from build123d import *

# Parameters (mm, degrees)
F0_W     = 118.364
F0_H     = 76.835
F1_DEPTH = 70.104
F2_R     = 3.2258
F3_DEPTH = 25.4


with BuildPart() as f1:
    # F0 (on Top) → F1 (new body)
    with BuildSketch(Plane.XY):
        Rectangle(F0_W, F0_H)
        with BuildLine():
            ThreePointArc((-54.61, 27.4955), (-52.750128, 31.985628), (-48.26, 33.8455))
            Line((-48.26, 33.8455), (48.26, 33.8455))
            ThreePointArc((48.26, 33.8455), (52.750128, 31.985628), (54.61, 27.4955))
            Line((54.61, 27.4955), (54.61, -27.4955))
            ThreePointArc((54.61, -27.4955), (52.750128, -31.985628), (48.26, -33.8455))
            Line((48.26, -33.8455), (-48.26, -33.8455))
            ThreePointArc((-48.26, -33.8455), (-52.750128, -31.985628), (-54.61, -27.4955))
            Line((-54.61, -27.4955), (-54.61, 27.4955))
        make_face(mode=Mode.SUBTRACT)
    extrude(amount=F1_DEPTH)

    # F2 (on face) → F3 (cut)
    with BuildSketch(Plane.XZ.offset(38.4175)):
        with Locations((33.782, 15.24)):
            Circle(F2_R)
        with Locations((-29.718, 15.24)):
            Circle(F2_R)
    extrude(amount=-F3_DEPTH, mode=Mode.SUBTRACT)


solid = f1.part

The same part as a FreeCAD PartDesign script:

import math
import FreeCAD as App
import Part
import Sketcher

V = App.Vector
Q = App.Units.Quantity

doc = App.newDocument("Part")
body = doc.addObject("PartDesign::Body", "Body")

# Sketch on XY plane
sketch1 = body.newObject("Sketcher::SketchObject", "Sketch")
sketch1.AttachmentSupport = (doc.getObject("XY_Plane"), [""])
sketch1.MapMode = "FlatFace"
sketch1.addGeometry(Part.LineSegment(V(-59.182, 38.4175, 0), V(-59.182, -38.4175, 0)), False)
sketch1.addGeometry(Part.LineSegment(V(-59.182, -38.4175, 0), V(59.182, -38.4175, 0)), False)
sketch1.addGeometry(Part.LineSegment(V(59.182, -38.4175, 0), V(59.182, 38.4175, 0)), False)
sketch1.addGeometry(Part.LineSegment(V(59.182, 38.4175, 0), V(-59.182, 38.4175, 0)), False)
sketch1.addGeometry(Part.LineSegment(V(-54.61, -27.4955, 0), V(-54.61, 27.4955, 0)), False)
sketch1.addGeometry(Part.ArcOfCircle(Part.Circle(V(-48.26, 27.4955, 0), V(0, 0, 1), 6.35), math.radians(90.000002), math.radians(179.999998)), False)
sketch1.addGeometry(Part.LineSegment(V(-48.26, 33.8455, 0), V(48.26, 33.8455, 0)), False)
sketch1.addGeometry(Part.ArcOfCircle(Part.Circle(V(48.26, 27.4955, 0), V(0, 0, 1), 6.35), math.radians(0.000002), math.radians(89.999998)), False)
sketch1.addGeometry(Part.LineSegment(V(54.61, 27.4955, 0), V(54.61, -27.4955, 0)), False)
sketch1.addGeometry(Part.ArcOfCircle(Part.Circle(V(48.26, -27.4955, 0), V(0, 0, 1), 6.35), math.radians(-89.999998), math.radians(-0.000002)), False)
sketch1.addGeometry(Part.LineSegment(V(48.26, -33.8455, 0), V(-48.26, -33.8455, 0)), False)
sketch1.addGeometry(Part.ArcOfCircle(Part.Circle(V(-48.26, -27.4955, 0), V(0, 0, 1), 6.35), math.radians(-179.999998), math.radians(-90.000002)), False)
sketch1.addConstraint(Sketcher.Constraint("Coincident", 0, 2, 1, 1))
sketch1.addConstraint(Sketcher.Constraint("Coincident", 1, 2, 2, 1))
sketch1.addConstraint(Sketcher.Constraint("Coincident", 2, 2, 3, 1))
sketch1.addConstraint(Sketcher.Constraint("Coincident", 3, 2, 0, 1))
sketch1.addConstraint(Sketcher.Constraint("Tangent", 4, 2, 5, 2))
sketch1.addConstraint(Sketcher.Constraint("Tangent", 5, 1, 6, 1))
sketch1.addConstraint(Sketcher.Constraint("Tangent", 6, 2, 7, 2))
sketch1.addConstraint(Sketcher.Constraint("Tangent", 7, 1, 8, 1))
sketch1.addConstraint(Sketcher.Constraint("Tangent", 8, 2, 9, 2))
sketch1.addConstraint(Sketcher.Constraint("Tangent", 9, 1, 10, 1))
sketch1.addConstraint(Sketcher.Constraint("Tangent", 10, 2, 11, 2))
sketch1.addConstraint(Sketcher.Constraint("Tangent", 11, 1, 4, 1))
sketch1.addConstraint(Sketcher.Constraint("Vertical", 0))
sketch1.addConstraint(Sketcher.Constraint("Horizontal", 1))
sketch1.addConstraint(Sketcher.Constraint("Vertical", 2))
sketch1.addConstraint(Sketcher.Constraint("Horizontal", 3))
sketch1.addConstraint(Sketcher.Constraint("Vertical", 4))
sketch1.addConstraint(Sketcher.Constraint("Horizontal", 6))
sketch1.addConstraint(Sketcher.Constraint("Vertical", 8))
sketch1.addConstraint(Sketcher.Constraint("Horizontal", 10))
sketch1.addConstraint(Sketcher.Constraint("Equal", 5, 7))
sketch1.addConstraint(Sketcher.Constraint("Equal", 7, 9))
sketch1.addConstraint(Sketcher.Constraint("Equal", 9, 11))
sketch1.addConstraint(Sketcher.Constraint("Symmetric", 5, 3, 9, 3, -1, 1))
sketch1.addConstraint(Sketcher.Constraint("Symmetric", 0, 2, 2, 2, -1, 1))
sketch1.addConstraint(Sketcher.Constraint("Radius", 5, Q("0.25 in")))
sketch1.addConstraint(Sketcher.Constraint("DistanceX", 6, 1, 6, 2, Q("3.8 in")))
sketch1.addConstraint(Sketcher.Constraint("DistanceX", 1, 1, 1, 2, Q("4.66 in")))
sketch1.addConstraint(Sketcher.Constraint("DistanceY", 0, 2, 0, 1, Q("3.025 in")))
sketch1.addConstraint(Sketcher.Constraint("DistanceY", 4, 1, 4, 2, Q("2.165 in")))
pad1 = body.newObject("PartDesign::Pad", "Pad")
pad1.Profile = sketch1
pad1.Length = Q("2.76 in")

# Sketch on XZ plane
sketch2 = body.newObject("Sketcher::SketchObject", "Sketch001")
sketch2.AttachmentSupport = (doc.getObject("XZ_Plane"), [""])
sketch2.MapMode = "FlatFace"
sketch2.AttachmentOffset = App.Placement(V(0, 0, 1.5125 * 25.4), App.Rotation())
sketch2.addGeometry(Part.Circle(V(33.782, 15.24, 0), V(0, 0, 1), 3.2258), False)
sketch2.addGeometry(Part.Circle(V(-29.718, 15.24, 0), V(0, 0, 1), 3.2258), False)
sketch2.addConstraint(Sketcher.Constraint("Equal", 0, 1))
sketch2.addConstraint(Sketcher.Constraint("Horizontal", 0, 3, 1, 3))
sketch2.addConstraint(Sketcher.Constraint("Diameter", 0, Q("0.254 in")))
sketch2.addConstraint(Sketcher.Constraint("DistanceY", -1, 1, 0, 3, Q("0.6 in")))
sketch2.addConstraint(Sketcher.Constraint("DistanceX", 1, 3, 0, 3, Q("2.5 in")))
sketch2.addConstraint(Sketcher.Constraint("DistanceX", -1, 1, 0, 3, Q("1.33 in")))
pocket1 = body.newObject("PartDesign::Pocket", "Pocket")
pocket1.Profile = sketch2
pocket1.Length = Q("1 in")

doc.recompute()
